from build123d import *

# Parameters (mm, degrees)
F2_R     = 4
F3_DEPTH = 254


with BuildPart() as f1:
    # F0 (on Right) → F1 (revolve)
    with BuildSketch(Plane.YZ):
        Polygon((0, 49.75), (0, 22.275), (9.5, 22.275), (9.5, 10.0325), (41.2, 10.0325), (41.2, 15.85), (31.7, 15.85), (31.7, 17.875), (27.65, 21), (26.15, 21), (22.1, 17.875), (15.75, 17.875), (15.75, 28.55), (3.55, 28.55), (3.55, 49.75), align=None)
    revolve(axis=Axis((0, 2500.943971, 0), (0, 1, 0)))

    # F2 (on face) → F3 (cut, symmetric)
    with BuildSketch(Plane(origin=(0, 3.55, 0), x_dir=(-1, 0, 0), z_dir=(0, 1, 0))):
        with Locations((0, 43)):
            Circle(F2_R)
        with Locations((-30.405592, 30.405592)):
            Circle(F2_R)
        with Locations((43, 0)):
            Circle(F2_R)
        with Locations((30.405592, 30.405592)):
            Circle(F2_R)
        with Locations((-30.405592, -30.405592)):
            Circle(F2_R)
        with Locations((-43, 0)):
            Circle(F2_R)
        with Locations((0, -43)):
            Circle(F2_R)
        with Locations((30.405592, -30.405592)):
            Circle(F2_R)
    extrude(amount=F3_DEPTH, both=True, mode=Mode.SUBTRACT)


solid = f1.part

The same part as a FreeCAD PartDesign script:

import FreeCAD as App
import Part
import Sketcher

doc = App.newDocument("Part")
body = doc.addObject("PartDesign::Body", "Body")

# Sketch on YZ plane
sketch1 = body.newObject("Sketcher::SketchObject", "Sketch")
sketch1.AttachmentSupport = (doc.getObject("YZ_Plane"), [""])
sketch1.MapMode = "FlatFace"
sketch1.addGeometry([
    Part.LineSegment(App.Vector(0, 49.8, 0), App.Vector(0, 22.3, 0)),  # 0
    Part.LineSegment(App.Vector(0, 22.3, 0), App.Vector(9.5, 22.3, 0)),  # 1
    Part.LineSegment(App.Vector(9.5, 22.3, 0), App.Vector(9.5, 10, 0)),  # 2
    Part.LineSegment(App.Vector(9.5, 10, 0), App.Vector(41.2, 10, 0)),  # 3
    Part.LineSegment(App.Vector(41.2, 10, 0), App.Vector(41.2, 15.8, 0)),  # 4
    Part.LineSegment(App.Vector(41.2, 15.8, 0), App.Vector(31.7, 15.8, 0)),  # 5
    Part.LineSegment(App.Vector(31.7, 15.8, 0), App.Vector(31.7, 17.9, 0)),  # 6
    Part.LineSegment(App.Vector(31.7, 17.9, 0), App.Vector(27.6, 21, 0)),  # 7
    Part.LineSegment(App.Vector(27.6, 21, 0), App.Vector(26.1, 21, 0)),  # 8
    Part.LineSegment(App.Vector(26.1, 21, 0), App.Vector(22.1, 17.9, 0)),  # 9
    Part.LineSegment(App.Vector(22.1, 17.9, 0), App.Vector(15.8, 17.9, 0)),  # 10
    Part.LineSegment(App.Vector(15.8, 17.9, 0), App.Vector(15.8, 28.6, 0)),  # 11
    Part.LineSegment(App.Vector(15.8, 28.6, 0), App.Vector(3.5, 28.6, 0)),  # 12
    Part.LineSegment(App.Vector(3.5, 28.6, 0), App.Vector(3.5, 49.8, 0)),  # 13
    Part.LineSegment(App.Vector(3.5, 49.8, 0), App.Vector(0, 49.8, 0)),  # 14
], False)
sketch1.addConstraint([
    Sketcher.Constraint("Coincident", 0, 2, 1, 1),
    Sketcher.Constraint("Coincident", 1, 2, 2, 1),
    Sketcher.Constraint("Coincident", 2, 2, 3, 1),
    Sketcher.Constraint("Coincident", 3, 2, 4, 1),
    Sketcher.Constraint("Coincident", 4, 2, 5, 1),
    Sketcher.Constraint("Coincident", 5, 2, 6, 1),
    Sketcher.Constraint("Coincident", 6, 2, 7, 1),
    Sketcher.Constraint("Coincident", 7, 2, 8, 1),
    Sketcher.Constraint("Coincident", 8, 2, 9, 1),
    Sketcher.Constraint("Coincident", 9, 2, 10, 1),
    Sketcher.Constraint("Coincident", 10, 2, 11, 1),
    Sketcher.Constraint("Coincident", 11, 2, 12, 1),
    Sketcher.Constraint("Coincident", 12, 2, 13, 1),
    Sketcher.Constraint("Coincident", 13, 2, 14, 1),
    Sketcher.Constraint("Coincident", 14, 2, 0, 1),
    Sketcher.Constraint("Vertical", 0),
    Sketcher.Constraint("Horizontal", 1),
    Sketcher.Constraint("Vertical", 2),
    Sketcher.Constraint("Horizontal", 3),
    Sketcher.Constraint("Vertical", 4),
    Sketcher.Constraint("Horizontal", 5),
    Sketcher.Constraint("Vertical", 6),
    Sketcher.Constraint("Horizontal", 8),
    Sketcher.Constraint("Horizontal", 10),
    Sketcher.Constraint("Vertical", 11),
    Sketcher.Constraint("Horizontal", 12),
    Sketcher.Constraint("Vertical", 13),
    Sketcher.Constraint("Horizontal", 14),
    Sketcher.Constraint("PointOnObject", 0, 2, -2),
    Sketcher.Constraint("Horizontal", 6, 2, 9, 2),
    Sketcher.Constraint("Equal", 1, 5),
    Sketcher.Constraint("Equal", 7, 9),
    Sketcher.Constraint("DistanceX", 1, 1, 1, 2, 9.5),
    Sketcher.Constraint("DistanceX", 3, 1, 3, 2, 31.7),
    Sketcher.Constraint("DistanceX", 8, 2, 8, 1, 1.5),
    Sketcher.Constraint("DistanceX", 12, 2, 12, 1, 12.2),
    Sketcher.Constraint("DistanceY", 13, 1, 13, 2, 21.2),
    Sketcher.Constraint("DistanceY", -1, 1, 7, 2, 21.0),
    Sketcher.Constraint("DistanceX", 10, 2, 10, 1, 6.35),
    Sketcher.Constraint("DistanceX", 14, 2, 14, 1, 3.55),
    Sketcher.Constraint("DistanceY", 6, 2, 1, 2, 4.4),
    Sketcher.Constraint("DistanceY", 0, 2, 0, 1, 27.475),
    Sketcher.Constraint("DistanceY", 6, 1, 6, 2, 2.025),
    Sketcher.Constraint("DistanceY", -1, 1, 4, 2, 15.85),
    Sketcher.Constraint("DistanceY", 2, 2, 2, 1, 12.2425),
])
revolution = body.newObject("PartDesign::Revolution", "Revolution")
revolution.Profile = sketch1
revolution.ReferenceAxis = (sketch1, ["H_Axis"])
revolution.Angle = 360

# Sketch on XZ plane
sketch2 = body.newObject("Sketcher::SketchObject", "Sketch001")
sketch2.AttachmentSupport = (doc.getObject("XZ_Plane"), [""])
sketch2.MapMode = "FlatFace"
sketch2.AttachmentOffset = App.Placement(App.Vector(0, 0, -3.55), App.Rotation())
sketch2.addGeometry([
    Part.Circle(App.Vector(0, 43, 0), App.Vector(0, 0, 1), 4),  # 0
    Part.Circle(App.Vector(30.4, 30.4, 0), App.Vector(0, 0, 1), 4),  # 1
    Part.Circle(App.Vector(-43, 0, 0), App.Vector(0, 0, 1), 4),  # 2
    Part.Circle(App.Vector(-30.4, 30.4, 0), App.Vector(0, 0, 1), 4),  # 3
    Part.Circle(App.Vector(30.4, -30.4, 0), App.Vector(0, 0, 1), 4),  # 4
    Part.Circle(App.Vector(43, 0, 0), App.Vector(0, 0, 1), 4),  # 5
    Part.Circle(App.Vector(0, -43, 0), App.Vector(0, 0, 1), 4),  # 6
    Part.Circle(App.Vector(-30.4, -30.4, 0), App.Vector(0, 0, 1), 4),  # 7
], False)
sketch2.addConstraint([
    Sketcher.Constraint("Equal", 0, 1),
    Sketcher.Constraint("Equal", 1, 2),
    Sketcher.Constraint("Equal", 2, 3),
    Sketcher.Constraint("Equal", 3, 4),
    Sketcher.Constraint("Equal", 4, 5),
    Sketcher.Constraint("Equal", 5, 6),
    Sketcher.Constraint("Equal", 6, 7),
    Sketcher.Constraint("Symmetric", 3, 3, 4, 3, -1, 1),
    Sketcher.Constraint("Symmetric", 2, 3, 5, 3, -1, 1),
    Sketcher.Constraint("Symmetric", 0, 3, 6, 3, -1, 1),
    Sketcher.Constraint("Symmetric", 1, 3, 7, 3, -1, 1),
    Sketcher.Constraint("Symmetric", 1, 3, 3, 3, -2),
    Sketcher.Constraint("PointOnObject", 0, 3, -2),
    Sketcher.Constraint("PointOnObject", 2, 3, -1),
    Sketcher.Constraint("Diameter", 0, 8.0),
    Sketcher.Constraint("DistanceY", -1, 1, 0, 3, 43.0),
    Sketcher.Constraint("DistanceX", 2, 3, -1, 1, 43.0),
    Sketcher.Constraint("DistanceX", -1, 1, 1, 3, 30.405592),
    Sketcher.Constraint("DistanceY", -1, 1, 1, 3, 30.405592),
])
pocket1 = body.newObject("PartDesign::Pocket", "Pocket")
pocket1.Profile = sketch2
pocket1.Length = 508
pocket1.Midplane = True

doc.recompute()
